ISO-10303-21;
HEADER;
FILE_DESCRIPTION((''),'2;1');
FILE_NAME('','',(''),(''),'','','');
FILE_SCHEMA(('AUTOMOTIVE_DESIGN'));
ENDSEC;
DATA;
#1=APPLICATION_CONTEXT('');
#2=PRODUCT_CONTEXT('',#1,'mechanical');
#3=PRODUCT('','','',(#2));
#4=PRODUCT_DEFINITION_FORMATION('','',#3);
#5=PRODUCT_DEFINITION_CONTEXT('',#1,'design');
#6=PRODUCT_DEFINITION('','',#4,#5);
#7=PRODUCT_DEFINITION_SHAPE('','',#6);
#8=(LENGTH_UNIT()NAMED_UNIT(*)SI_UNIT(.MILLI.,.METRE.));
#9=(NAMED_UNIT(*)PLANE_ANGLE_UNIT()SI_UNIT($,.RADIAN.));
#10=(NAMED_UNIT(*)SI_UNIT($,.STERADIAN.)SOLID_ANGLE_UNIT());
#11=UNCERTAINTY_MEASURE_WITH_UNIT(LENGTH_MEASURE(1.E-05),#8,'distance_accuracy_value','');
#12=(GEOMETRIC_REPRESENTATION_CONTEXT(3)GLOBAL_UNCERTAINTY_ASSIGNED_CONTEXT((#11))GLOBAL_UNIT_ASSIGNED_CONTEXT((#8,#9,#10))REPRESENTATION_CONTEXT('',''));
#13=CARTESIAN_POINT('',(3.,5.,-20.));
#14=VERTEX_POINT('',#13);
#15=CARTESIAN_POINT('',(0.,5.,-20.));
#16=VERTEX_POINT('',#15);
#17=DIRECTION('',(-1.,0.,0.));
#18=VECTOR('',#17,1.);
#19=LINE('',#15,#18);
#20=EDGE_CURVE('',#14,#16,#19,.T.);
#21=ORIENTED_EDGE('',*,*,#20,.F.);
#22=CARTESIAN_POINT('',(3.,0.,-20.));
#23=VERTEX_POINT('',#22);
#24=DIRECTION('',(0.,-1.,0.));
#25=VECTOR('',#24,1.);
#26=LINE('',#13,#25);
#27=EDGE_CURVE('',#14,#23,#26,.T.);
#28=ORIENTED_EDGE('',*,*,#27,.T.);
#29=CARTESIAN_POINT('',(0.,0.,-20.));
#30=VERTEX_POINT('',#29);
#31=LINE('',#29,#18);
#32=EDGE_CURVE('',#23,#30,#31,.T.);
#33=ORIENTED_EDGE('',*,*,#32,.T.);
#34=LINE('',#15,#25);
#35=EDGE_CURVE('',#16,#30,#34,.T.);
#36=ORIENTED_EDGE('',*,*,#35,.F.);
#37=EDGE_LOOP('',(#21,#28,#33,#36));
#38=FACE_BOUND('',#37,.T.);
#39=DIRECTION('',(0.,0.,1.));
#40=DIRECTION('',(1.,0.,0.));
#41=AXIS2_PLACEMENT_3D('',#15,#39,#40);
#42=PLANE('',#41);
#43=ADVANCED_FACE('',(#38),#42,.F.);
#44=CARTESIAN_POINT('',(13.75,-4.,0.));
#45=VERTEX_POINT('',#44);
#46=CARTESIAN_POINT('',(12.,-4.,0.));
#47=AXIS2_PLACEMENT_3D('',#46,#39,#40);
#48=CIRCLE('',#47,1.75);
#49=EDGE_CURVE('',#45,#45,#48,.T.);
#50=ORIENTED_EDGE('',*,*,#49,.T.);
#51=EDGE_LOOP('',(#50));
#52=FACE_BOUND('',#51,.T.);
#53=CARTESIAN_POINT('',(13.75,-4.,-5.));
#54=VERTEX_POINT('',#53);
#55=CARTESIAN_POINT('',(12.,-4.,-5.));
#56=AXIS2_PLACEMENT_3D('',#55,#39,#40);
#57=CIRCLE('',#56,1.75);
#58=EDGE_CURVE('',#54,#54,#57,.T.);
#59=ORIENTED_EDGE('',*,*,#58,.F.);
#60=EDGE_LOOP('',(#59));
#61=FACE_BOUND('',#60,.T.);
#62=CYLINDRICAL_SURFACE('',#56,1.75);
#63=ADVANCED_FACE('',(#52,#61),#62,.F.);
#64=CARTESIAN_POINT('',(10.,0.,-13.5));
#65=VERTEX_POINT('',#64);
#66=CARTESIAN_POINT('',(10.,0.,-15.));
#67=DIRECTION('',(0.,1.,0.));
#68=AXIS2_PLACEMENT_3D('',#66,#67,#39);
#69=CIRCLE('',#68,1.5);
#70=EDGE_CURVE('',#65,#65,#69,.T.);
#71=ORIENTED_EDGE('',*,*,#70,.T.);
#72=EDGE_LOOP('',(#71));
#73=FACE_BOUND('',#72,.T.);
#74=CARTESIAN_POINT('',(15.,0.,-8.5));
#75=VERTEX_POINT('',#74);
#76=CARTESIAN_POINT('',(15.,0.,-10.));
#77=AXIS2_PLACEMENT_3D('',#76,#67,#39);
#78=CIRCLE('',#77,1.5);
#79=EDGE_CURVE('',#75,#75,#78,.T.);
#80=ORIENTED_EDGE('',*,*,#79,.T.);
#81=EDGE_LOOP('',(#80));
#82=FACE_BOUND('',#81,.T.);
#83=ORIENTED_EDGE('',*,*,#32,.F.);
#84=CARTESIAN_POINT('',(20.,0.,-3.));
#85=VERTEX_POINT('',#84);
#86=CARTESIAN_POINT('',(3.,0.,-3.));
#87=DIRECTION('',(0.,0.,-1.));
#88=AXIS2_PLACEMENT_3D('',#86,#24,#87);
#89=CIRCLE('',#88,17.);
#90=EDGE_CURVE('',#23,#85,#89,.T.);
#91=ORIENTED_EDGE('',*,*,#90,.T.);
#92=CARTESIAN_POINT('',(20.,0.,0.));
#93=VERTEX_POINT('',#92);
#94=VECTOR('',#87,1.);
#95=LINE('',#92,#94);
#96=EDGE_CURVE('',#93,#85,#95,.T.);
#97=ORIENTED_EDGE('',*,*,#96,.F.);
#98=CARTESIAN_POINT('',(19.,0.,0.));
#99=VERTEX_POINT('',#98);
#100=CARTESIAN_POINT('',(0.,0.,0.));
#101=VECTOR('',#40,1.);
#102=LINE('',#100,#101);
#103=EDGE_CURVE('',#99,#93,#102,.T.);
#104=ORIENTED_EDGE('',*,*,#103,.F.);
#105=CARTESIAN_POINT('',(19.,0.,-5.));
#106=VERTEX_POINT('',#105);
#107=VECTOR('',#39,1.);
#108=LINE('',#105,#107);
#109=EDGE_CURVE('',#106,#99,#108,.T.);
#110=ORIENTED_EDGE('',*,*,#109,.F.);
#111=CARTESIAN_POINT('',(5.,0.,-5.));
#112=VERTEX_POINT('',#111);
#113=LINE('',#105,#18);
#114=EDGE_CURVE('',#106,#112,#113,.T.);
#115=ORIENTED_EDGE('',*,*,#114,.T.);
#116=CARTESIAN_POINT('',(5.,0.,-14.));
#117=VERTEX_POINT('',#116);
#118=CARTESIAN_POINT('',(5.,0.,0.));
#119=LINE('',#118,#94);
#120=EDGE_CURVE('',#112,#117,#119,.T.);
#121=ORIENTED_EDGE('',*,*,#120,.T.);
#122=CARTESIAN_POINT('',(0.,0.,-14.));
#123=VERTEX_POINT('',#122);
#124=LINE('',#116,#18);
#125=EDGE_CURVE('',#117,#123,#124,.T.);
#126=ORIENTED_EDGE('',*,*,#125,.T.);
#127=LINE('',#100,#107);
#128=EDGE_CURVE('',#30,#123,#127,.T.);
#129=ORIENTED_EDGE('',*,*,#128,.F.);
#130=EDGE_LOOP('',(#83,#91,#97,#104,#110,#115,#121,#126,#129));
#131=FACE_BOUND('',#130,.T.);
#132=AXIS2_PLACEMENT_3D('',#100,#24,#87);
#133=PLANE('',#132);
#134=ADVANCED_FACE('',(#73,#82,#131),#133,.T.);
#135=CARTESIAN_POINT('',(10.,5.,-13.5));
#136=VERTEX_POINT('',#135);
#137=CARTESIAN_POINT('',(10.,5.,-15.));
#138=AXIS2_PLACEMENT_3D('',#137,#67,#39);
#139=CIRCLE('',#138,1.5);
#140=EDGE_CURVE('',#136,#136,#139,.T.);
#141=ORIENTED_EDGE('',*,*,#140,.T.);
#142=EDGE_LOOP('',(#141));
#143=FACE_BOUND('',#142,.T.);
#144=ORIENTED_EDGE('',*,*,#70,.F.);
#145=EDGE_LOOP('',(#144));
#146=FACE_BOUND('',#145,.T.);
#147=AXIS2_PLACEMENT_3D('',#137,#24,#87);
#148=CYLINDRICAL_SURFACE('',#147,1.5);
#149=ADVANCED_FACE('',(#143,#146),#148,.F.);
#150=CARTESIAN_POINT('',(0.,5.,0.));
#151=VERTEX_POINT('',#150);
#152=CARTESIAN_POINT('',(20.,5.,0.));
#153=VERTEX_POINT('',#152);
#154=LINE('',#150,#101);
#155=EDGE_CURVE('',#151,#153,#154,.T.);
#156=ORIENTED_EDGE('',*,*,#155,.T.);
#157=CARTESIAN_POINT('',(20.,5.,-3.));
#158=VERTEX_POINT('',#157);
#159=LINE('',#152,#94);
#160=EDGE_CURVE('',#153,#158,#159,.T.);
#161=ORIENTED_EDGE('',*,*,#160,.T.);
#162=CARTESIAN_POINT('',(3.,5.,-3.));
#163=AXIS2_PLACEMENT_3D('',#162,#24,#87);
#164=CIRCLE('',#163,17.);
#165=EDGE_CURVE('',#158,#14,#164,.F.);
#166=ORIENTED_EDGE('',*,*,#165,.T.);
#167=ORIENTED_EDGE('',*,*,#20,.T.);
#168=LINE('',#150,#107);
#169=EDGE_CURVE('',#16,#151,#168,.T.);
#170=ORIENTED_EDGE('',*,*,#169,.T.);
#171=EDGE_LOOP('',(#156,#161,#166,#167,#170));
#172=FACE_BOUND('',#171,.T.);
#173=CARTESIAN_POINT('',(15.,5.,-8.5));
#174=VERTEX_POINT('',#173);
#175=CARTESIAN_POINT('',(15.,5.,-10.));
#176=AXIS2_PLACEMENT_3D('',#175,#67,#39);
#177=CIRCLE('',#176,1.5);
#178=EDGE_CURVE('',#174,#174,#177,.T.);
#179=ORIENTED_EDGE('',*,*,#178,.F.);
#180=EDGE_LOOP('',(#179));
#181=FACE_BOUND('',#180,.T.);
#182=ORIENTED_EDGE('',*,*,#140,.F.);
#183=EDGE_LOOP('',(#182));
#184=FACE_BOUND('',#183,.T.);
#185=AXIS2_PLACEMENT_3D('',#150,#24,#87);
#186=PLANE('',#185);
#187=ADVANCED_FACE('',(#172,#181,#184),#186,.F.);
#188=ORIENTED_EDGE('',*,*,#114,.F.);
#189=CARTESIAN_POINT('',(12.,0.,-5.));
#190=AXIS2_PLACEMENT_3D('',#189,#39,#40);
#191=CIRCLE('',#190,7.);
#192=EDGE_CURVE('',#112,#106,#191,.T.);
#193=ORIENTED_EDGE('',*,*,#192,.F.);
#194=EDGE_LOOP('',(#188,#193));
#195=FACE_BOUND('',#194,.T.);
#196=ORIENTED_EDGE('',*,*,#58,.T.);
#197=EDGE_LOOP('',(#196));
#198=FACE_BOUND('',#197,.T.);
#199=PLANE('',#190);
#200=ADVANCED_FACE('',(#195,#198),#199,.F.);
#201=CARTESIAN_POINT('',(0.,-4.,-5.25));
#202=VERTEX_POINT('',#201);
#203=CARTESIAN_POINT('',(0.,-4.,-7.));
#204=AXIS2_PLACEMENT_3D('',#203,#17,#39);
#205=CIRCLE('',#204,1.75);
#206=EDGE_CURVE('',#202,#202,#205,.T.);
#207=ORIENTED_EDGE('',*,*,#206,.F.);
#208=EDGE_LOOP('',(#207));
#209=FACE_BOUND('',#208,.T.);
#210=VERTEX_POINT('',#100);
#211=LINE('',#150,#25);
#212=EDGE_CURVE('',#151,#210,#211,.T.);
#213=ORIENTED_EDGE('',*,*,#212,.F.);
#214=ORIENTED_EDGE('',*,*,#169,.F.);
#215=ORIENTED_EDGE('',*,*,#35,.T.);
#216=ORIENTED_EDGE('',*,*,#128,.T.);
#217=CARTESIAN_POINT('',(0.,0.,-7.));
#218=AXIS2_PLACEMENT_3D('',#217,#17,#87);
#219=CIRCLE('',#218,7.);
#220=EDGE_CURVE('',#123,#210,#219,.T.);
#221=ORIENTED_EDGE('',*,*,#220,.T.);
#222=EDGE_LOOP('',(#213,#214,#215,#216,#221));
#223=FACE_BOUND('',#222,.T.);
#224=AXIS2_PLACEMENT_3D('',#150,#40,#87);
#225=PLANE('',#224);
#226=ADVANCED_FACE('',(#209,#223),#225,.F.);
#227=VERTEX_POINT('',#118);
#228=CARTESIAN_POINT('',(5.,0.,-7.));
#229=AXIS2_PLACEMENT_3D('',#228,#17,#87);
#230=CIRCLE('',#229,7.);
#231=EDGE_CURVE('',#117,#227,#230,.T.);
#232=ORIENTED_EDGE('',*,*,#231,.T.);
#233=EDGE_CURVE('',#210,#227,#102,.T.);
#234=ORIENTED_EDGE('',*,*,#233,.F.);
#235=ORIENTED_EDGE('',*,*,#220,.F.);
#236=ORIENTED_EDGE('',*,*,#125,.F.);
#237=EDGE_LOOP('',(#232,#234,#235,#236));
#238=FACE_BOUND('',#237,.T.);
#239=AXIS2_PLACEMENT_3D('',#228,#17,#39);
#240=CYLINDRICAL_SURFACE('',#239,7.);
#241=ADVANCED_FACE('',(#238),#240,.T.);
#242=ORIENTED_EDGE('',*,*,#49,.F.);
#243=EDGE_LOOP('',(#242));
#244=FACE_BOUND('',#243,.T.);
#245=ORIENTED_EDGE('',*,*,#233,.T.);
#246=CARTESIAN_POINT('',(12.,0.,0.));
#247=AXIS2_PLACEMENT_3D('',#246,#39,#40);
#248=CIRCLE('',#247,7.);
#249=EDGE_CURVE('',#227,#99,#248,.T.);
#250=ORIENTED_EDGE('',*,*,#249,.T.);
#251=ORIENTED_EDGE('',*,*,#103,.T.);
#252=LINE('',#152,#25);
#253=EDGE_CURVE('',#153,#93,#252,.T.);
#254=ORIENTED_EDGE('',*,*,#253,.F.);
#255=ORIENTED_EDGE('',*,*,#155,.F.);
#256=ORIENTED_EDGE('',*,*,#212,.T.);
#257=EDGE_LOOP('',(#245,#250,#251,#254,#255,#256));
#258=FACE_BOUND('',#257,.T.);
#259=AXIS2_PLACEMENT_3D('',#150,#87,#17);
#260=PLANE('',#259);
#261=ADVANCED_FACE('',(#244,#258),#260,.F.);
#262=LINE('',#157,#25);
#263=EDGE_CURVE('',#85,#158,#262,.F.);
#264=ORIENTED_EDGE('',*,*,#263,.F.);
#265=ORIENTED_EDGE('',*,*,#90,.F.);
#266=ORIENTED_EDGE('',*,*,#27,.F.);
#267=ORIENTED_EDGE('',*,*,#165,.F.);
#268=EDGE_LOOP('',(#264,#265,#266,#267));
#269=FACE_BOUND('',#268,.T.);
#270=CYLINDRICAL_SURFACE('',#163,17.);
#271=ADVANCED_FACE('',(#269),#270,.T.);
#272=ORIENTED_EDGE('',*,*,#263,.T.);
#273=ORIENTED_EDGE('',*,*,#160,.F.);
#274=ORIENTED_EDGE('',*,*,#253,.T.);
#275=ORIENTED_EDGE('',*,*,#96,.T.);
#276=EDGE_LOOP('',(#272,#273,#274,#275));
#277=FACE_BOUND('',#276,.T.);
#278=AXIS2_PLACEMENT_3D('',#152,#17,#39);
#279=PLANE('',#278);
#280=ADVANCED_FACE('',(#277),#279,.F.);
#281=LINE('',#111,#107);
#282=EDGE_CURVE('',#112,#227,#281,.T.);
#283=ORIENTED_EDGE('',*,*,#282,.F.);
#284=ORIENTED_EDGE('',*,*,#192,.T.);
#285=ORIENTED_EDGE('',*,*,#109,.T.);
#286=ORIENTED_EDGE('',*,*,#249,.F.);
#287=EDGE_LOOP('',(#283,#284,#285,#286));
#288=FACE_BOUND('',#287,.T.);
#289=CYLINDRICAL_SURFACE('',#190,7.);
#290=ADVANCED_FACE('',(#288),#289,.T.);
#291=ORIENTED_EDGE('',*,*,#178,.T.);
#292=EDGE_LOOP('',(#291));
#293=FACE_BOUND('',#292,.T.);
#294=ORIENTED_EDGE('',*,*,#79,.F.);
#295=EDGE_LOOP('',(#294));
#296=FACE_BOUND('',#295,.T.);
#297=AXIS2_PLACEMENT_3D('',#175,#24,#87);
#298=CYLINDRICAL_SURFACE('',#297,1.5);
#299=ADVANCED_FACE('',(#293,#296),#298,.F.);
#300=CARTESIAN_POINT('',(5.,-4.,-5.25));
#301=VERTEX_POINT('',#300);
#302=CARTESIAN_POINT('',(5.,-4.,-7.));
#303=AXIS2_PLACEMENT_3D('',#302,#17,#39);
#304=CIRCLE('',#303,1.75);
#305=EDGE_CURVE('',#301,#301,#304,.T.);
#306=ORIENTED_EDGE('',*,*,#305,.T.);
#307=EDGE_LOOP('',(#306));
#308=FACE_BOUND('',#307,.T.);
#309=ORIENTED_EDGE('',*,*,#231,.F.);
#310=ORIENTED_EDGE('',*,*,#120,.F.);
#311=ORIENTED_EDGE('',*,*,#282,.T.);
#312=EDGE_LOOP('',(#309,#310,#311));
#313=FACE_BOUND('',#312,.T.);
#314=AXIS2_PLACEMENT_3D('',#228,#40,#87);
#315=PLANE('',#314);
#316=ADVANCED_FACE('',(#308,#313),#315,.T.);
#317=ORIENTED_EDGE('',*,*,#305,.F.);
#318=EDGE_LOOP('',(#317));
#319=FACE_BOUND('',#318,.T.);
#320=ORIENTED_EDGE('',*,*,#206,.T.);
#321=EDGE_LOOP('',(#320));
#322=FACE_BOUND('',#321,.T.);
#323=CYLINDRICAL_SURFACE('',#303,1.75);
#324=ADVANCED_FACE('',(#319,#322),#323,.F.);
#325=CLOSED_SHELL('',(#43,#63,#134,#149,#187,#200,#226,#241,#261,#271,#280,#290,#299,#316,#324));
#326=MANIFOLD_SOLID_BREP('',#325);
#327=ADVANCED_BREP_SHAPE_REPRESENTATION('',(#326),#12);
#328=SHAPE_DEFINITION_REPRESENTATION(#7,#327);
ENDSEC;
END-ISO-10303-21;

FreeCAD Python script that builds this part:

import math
import FreeCAD as App
import Part
import Sketcher
Q = App.Units.Quantity


def edges_at(feature, points):
    """Names of the edges that pass closest to the given points."""
    edges = feature.Shape.Edges
    near = lambda p: min(range(len(edges)), key=lambda i: edges[i].distToShape(Part.Vertex(*p))[0])
    return sorted({f"Edge{near(p) + 1}" for p in points})

doc = App.newDocument("Part")
body = doc.addObject("PartDesign::Body", "Body")

# Sketch on XZ plane
sketch1 = body.newObject("Sketcher::SketchObject", "Sketch")
sketch1.AttachmentSupport = (doc.getObject("XZ_Plane"), [""])
sketch1.MapMode = "FlatFace"
sketch1.addGeometry(Part.LineSegment(App.Vector(0, -20, 0), App.Vector(0, 0, 0)), False)
sketch1.addGeometry(Part.LineSegment(App.Vector(0, 0, 0), App.Vector(20, 0, 0)), False)
sketch1.addGeometry(Part.LineSegment(App.Vector(20, 0, 0), App.Vector(20, -20, 0)), False)
sketch1.addGeometry(Part.LineSegment(App.Vector(20, -20, 0), App.Vector(0, -20, 0)), False)
sketch1.addGeometry(Part.Circle(App.Vector(15, -10, 0), App.Vector(0, 0, 1), 1.5), False)
sketch1.addGeometry(Part.Circle(App.Vector(10, -15, 0), App.Vector(0, 0, 1), 1.5), False)
sketch1.addConstraint(Sketcher.Constraint("Coincident", 0, 2, 1, 1))
sketch1.addConstraint(Sketcher.Constraint("Coincident", 1, 2, 2, 1))
sketch1.addConstraint(Sketcher.Constraint("Coincident", 2, 2, 3, 1))
sketch1.addConstraint(Sketcher.Constraint("Coincident", 3, 2, 0, 1))
sketch1.addConstraint(Sketcher.Constraint("Vertical", 0))
sketch1.addConstraint(Sketcher.Constraint("Horizontal", 1))
sketch1.addConstraint(Sketcher.Constraint("Vertical", 2))
sketch1.addConstraint(Sketcher.Constraint("Horizontal", 3))
sketch1.addConstraint(Sketcher.Constraint("Coincident", 0, 2, -1, 1))
sketch1.addConstraint(Sketcher.Constraint("Equal", 4, 5))
sketch1.addConstraint(Sketcher.Constraint("Equal", 3, 0))
sketch1.addConstraint(Sketcher.Constraint("Diameter", 4, Q("3 mm")))
sketch1.addConstraint(Sketcher.Constraint("DistanceX", 1, 1, 1, 2, Q("20 mm")))
sketch1.addConstraint(Sketcher.Constraint("DistanceX", -1, 1, 4, 3, Q("15 mm")))
sketch1.addConstraint(Sketcher.Constraint("DistanceY", 4, 3, -1, 1, Q("10 mm")))
sketch1.addConstraint(Sketcher.Constraint("DistanceX", -1, 1, 5, 3, Q("10 mm")))
sketch1.addConstraint(Sketcher.Constraint("DistanceY", 5, 3, -1, 1, Q("15 mm")))
pad1 = body.newObject("PartDesign::Pad", "Pad")
pad1.Profile = sketch1
pad1.Length = 5
pad1.Reversed = True

# Sketch on XY plane
sketch2 = body.newObject("Sketcher::SketchObject", "Sketch001")
sketch2.AttachmentSupport = (doc.getObject("XY_Plane"), [""])
sketch2.MapMode = "FlatFace"
sketch2.addGeometry(Part.LineSegment(App.Vector(19, 0, 0), App.Vector(5, 0, 0)), False)
sketch2.addGeometry(Part.ArcOfCircle(Part.Circle(App.Vector(12, 0, 0), App.Vector(0, 0, 1), 7), math.radians(180), math.radians(360)), False)
sketch2.addGeometry(Part.Circle(App.Vector(12, -4, 0), App.Vector(0, 0, 1), 1.8), False)
sketch2.addConstraint(Sketcher.Constraint("Coincident", 0, 1, 1, 2))
sketch2.addConstraint(Sketcher.Constraint("Coincident", 1, 1, 0, 2))
sketch2.addConstraint(Sketcher.Constraint("Horizontal", 0))
sketch2.addConstraint(Sketcher.Constraint("PointOnObject", 1, 3, -1))
sketch2.addConstraint(Sketcher.Constraint("PointOnObject", 0, 1, -1))
sketch2.addConstraint(Sketcher.Constraint("Vertical", 1, 3, 2, 3))
sketch2.addConstraint(Sketcher.Constraint("Radius", 1, Q("7 mm")))
sketch2.addConstraint(Sketcher.Constraint("Diameter", 2, Q("3.5 mm")))
sketch2.addConstraint(Sketcher.Constraint("DistanceX", -1, 1, 1, 3, Q("12 mm")))
sketch2.addConstraint(Sketcher.Constraint("DistanceY", 2, 3, -1, 1, Q("4 mm")))
pad2 = body.newObject("PartDesign::Pad", "Pad001")
pad2.Profile = sketch2
pad2.Length = 5
pad2.Reversed = True

# Sketch on YZ plane
sketch3 = body.newObject("Sketcher::SketchObject", "Sketch002")
sketch3.AttachmentSupport = (doc.getObject("YZ_Plane"), [""])
sketch3.MapMode = "FlatFace"
sketch3.addGeometry(Part.LineSegment(App.Vector(0, 0, 0), App.Vector(0, -14, 0)), False)
sketch3.addGeometry(Part.ArcOfCircle(Part.Circle(App.Vector(0, -7, 0), App.Vector(0, 0, 1), 7), math.radians(90), math.radians(270)), False)
sketch3.addGeometry(Part.Circle(App.Vector(-4, -7, 0), App.Vector(0, 0, 1), 1.8), False)
sketch3.addConstraint(Sketcher.Constraint("Coincident", 0, 1, 1, 1))
sketch3.addConstraint(Sketcher.Constraint("Coincident", 1, 2, 0, 2))
sketch3.addConstraint(Sketcher.Constraint("Vertical", 0))
sketch3.addConstraint(Sketcher.Constraint("Coincident", 0, 1, -1, 1))
sketch3.addConstraint(Sketcher.Constraint("PointOnObject", 1, 3, -2))
sketch3.addConstraint(Sketcher.Constraint("Horizontal", 1, 3, 2, 3))
sketch3.addConstraint(Sketcher.Constraint("Radius", 1, Q("7 mm")))
sketch3.addConstraint(Sketcher.Constraint("Diameter", 2, Q("3.5 mm")))
sketch3.addConstraint(Sketcher.Constraint("DistanceX", 2, 3, -1, 1, Q("4 mm")))
pad3 = body.newObject("PartDesign::Pad", "Pad002")
pad3.Profile = sketch3
pad3.Length = 5
doc.recompute()

fillet = body.newObject("PartDesign::Fillet", "Fillet")
fillet.Base = (pad3, edges_at(pad3, [(20, 2.5, -20)]))
fillet.Radius = 17

doc.recompute()
